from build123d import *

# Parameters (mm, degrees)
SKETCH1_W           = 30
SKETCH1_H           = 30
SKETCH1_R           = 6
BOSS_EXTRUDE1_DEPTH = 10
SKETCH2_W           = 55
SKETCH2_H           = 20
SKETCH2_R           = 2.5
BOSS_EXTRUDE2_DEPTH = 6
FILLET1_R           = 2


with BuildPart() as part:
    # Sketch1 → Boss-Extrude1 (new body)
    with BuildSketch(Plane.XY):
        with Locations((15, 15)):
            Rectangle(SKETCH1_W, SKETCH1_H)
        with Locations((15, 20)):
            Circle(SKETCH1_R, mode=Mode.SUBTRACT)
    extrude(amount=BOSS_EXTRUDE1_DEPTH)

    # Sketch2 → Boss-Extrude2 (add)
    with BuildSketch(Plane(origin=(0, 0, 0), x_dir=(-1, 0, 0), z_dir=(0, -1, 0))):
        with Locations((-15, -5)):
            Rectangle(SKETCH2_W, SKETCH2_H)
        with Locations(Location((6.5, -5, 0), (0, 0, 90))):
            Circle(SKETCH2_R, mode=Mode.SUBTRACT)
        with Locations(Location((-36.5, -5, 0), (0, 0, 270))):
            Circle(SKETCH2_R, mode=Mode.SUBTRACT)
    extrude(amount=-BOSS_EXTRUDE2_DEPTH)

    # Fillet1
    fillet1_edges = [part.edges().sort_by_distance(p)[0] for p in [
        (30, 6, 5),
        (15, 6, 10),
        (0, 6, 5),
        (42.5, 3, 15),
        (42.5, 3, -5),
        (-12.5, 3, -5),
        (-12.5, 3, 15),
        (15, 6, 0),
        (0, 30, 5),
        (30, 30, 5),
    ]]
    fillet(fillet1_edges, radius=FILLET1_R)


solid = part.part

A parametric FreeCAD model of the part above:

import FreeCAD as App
import Part
import Sketcher

V = App.Vector


def edges_at(feature, points):
    """Names of the edges that pass closest to the given points."""
    edges = feature.Shape.Edges
    near = lambda p: min(range(len(edges)), key=lambda i: edges[i].distToShape(Part.Vertex(*p))[0])
    return sorted({f"Edge{near(p) + 1}" for p in points})


def add_polygon(sketch, points):
    """Adds a closed chain of lines whose ends are joined by coincident constraints."""
    first, n = sketch.GeometryCount, len(points)
    for a, b in zip(points, points[1:] + points[:1]):
        sketch.addGeometry(Part.LineSegment(App.Vector(*a, 0), App.Vector(*b, 0)), False)
    for i in range(n):
        sketch.addConstraint(Sketcher.Constraint("Coincident", first + i, 2, first + (i + 1) % n, 1))

doc = App.newDocument("Part")
body = doc.addObject("PartDesign::Body", "Body")

# Sketch on XY plane
sketch1 = body.newObject("Sketcher::SketchObject", "Sketch")
sketch1.AttachmentSupport = (doc.getObject("XY_Plane"), [""])
sketch1.MapMode = "FlatFace"
add_polygon(sketch1, [(0, 30), (0, 0), (30, 0), (30, 30)])  # lines 0-3
sketch1.addGeometry(Part.Circle(V(15, 20, 0), V(0, 0, 1), 6), False)  # 4
sketch1.addConstraint(Sketcher.Constraint("Vertical", 0))
sketch1.addConstraint(Sketcher.Constraint("Horizontal", 1))
sketch1.addConstraint(Sketcher.Constraint("Vertical", 2))
sketch1.addConstraint(Sketcher.Constraint("Horizontal", 3))
sketch1.addConstraint(Sketcher.Constraint("Coincident", 0, 2, -1, 1))
sketch1.addConstraint(Sketcher.Constraint("Equal", 3, 0))
sketch1.addConstraint(Sketcher.Constraint("Diameter", 4, 12.0))
sketch1.addConstraint(Sketcher.Constraint("DistanceX", 1, 1, 1, 2, 30.0))
sketch1.addConstraint(Sketcher.Constraint("DistanceX", -1, 1, 4, 3, 15.0))
sketch1.addConstraint(Sketcher.Constraint("DistanceY", -1, 1, 4, 3, 20.0))
pad1 = body.newObject("PartDesign::Pad", "Pad")
pad1.Profile = sketch1
pad1.Length = 10

# Sketch on XZ plane
sketch2 = body.newObject("Sketcher::SketchObject", "Sketch001")
sketch2.AttachmentSupport = (doc.getObject("XZ_Plane"), [""])
sketch2.MapMode = "FlatFace"
add_polygon(sketch2, [(42.5, -5), (42.5, 15), (-12.5, 15), (-12.5, -5)])  # lines 0-3
sketch2.addGeometry(Part.Circle(V(36.5, 5, 0), V(0, 0, 1), 2.5), False)  # 4
sketch2.addGeometry(Part.Circle(V(-6.5, 5, 0), V(0, 0, 1), 2.5), False)  # 5
sketch2.addConstraint(Sketcher.Constraint("Vertical", 0))
sketch2.addConstraint(Sketcher.Constraint("Horizontal", 1))
sketch2.addConstraint(Sketcher.Constraint("Vertical", 2))
sketch2.addConstraint(Sketcher.Constraint("Horizontal", 3))
sketch2.addConstraint(Sketcher.Constraint("Equal", 4, 5))
sketch2.addConstraint(Sketcher.Constraint("Horizontal", 4, 3, 5, 3))
sketch2.addConstraint(Sketcher.Constraint("Diameter", 4, 5.0))
sketch2.addConstraint(Sketcher.Constraint("DistanceX", 1, 2, 1, 1, 55.0))
sketch2.addConstraint(Sketcher.Constraint("DistanceY", 0, 1, 0, 2, 20.0))
sketch2.addConstraint(Sketcher.Constraint("DistanceY", -1, 1, 4, 3, 5.0))
sketch2.addConstraint(Sketcher.Constraint("DistanceY", -1, 1, 0, 2, 15.0))
sketch2.addConstraint(Sketcher.Constraint("DistanceX", 5, 3, 4, 3, 43.0))
sketch2.addConstraint(Sketcher.Constraint("DistanceX", 4, 3, 0, 2, 6.0))
sketch2.addConstraint(Sketcher.Constraint("DistanceX", -1, 1, 4, 3, 36.5))
pad2 = body.newObject("PartDesign::Pad", "Pad001")
pad2.Profile = sketch2
pad2.Length = 6
pad2.Reversed = True
doc.recompute()

fillet = body.newObject("PartDesign::Fillet", "Fillet")
fillet.Base = (pad2, edges_at(pad2, [
    (30, 6, 5),
    (15, 6, 10),
    (0, 6, 5),
    (42.5, 3, 15),
    (42.5, 3, -5),
    (-12.5, 3, -5),
    (-12.5, 3, 15),
    (15, 6, 0),
    (0, 30, 5),
    (30, 30, 5),
]))
fillet.Radius = 2

doc.recompute()
